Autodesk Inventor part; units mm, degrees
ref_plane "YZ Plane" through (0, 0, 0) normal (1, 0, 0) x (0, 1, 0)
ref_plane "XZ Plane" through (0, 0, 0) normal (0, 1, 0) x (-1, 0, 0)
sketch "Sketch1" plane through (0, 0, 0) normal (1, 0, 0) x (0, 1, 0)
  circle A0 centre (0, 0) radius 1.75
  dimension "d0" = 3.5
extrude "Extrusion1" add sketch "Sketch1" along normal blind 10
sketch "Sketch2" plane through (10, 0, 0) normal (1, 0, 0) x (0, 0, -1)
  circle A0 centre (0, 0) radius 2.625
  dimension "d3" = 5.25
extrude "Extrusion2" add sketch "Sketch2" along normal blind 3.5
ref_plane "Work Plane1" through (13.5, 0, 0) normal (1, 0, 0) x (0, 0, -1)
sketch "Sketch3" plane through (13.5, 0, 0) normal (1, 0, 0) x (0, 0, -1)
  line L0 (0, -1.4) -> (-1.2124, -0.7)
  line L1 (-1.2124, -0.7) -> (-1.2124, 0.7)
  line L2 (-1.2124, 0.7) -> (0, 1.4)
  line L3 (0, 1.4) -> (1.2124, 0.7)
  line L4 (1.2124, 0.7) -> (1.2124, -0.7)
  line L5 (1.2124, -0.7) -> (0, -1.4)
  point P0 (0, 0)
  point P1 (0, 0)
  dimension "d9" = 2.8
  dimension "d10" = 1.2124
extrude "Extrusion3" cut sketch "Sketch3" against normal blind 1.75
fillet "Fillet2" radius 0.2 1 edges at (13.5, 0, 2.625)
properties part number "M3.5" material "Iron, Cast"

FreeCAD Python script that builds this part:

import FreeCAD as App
import Part
import Sketcher
Q = App.Units.Quantity


def edges_at(feature, points):
    """Names of the edges that pass closest to the given points."""
    edges = feature.Shape.Edges
    near = lambda p: min(range(len(edges)), key=lambda i: edges[i].distToShape(Part.Vertex(*p))[0])
    return sorted({f"Edge{near(p) + 1}" for p in points})

doc = App.newDocument("Part")
params = doc.addObject("Spreadsheet::Sheet", "Params")
for row, (alias, value) in enumerate([
    ("sketch1_diameter", "3.5 mm"),
    ("pad1_length", "10 mm"),
    ("sketch2_diameter", "5.25 mm"),
    ("pad2_length", "3.5 mm"),
    ("sketch3_width", "1.4 mm"),
    ("pocket1_length", "1.75 mm"),
    ("fillet_radius", "0.2 mm"),
], start=1):
    params.set(f"A{row}", alias)
    params.set(f"B{row}", "=" + value)
    params.setAlias(f"B{row}", alias)

body = doc.addObject("PartDesign::Body", "Body")

sketch1 = doc.addObject("Sketcher::SketchObject", "Sketch")
body.addObject(sketch1)
sketch1.AttachmentSupport = (doc.YZ_Plane, [""])
sketch1.MapMode = "FlatFace"
sketch1.addGeometry(Part.Circle(App.Vector(0, 0, 0), App.Vector(0, 0, 1), 1.8), False)
sketch1.addConstraint([
    Sketcher.Constraint("Coincident", 0, 3, -1, 1),
    Sketcher.Constraint("Diameter", 0, Q("3.5 mm")),
])
sketch1.setExpression("Constraints[1]", "Params.sketch1_diameter")
pad1 = doc.addObject("PartDesign::Pad", "Pad")
body.addObject(pad1)
pad1.Profile = sketch1
pad1.setExpression("Length", "Params.pad1_length")

sketch2 = doc.addObject("Sketcher::SketchObject", "Sketch001")
body.addObject(sketch2)
sketch2.AttachmentSupport = (doc.YZ_Plane, [""])
sketch2.MapMode = "FlatFace"
sketch2.AttachmentOffset = App.Placement(App.Vector(0, 0, 10), App.Rotation())
sketch2.addGeometry(Part.Circle(App.Vector(0, 0, 0), App.Vector(0, 0, 1), 2.6), False)
sketch2.addConstraint([
    Sketcher.Constraint("Coincident", 0, 3, -1, 1),
    Sketcher.Constraint("Diameter", 0, Q("5.25 mm")),
])
sketch2.setExpression("Constraints[1]", "Params.sketch2_diameter")
pad2 = doc.addObject("PartDesign::Pad", "Pad001")
body.addObject(pad2)
pad2.Profile = sketch2
pad2.setExpression("Length", "Params.pad2_length")

sketch3 = doc.addObject("Sketcher::SketchObject", "Sketch002")
body.addObject(sketch3)
sketch3.AttachmentSupport = (doc.YZ_Plane, [""])
sketch3.MapMode = "FlatFace"
sketch3.AttachmentOffset = App.Placement(App.Vector(0, 0, 13.5), App.Rotation())
sketch3.addGeometry([
    Part.LineSegment(App.Vector(-0.7, 1.2, 0), App.Vector(-1.4, 0, 0)),
    Part.LineSegment(App.Vector(-1.4, 0, 0), App.Vector(-0.7, -1.2, 0)),
    Part.LineSegment(App.Vector(-0.7, -1.2, 0), App.Vector(0.7, -1.2, 0)),
    Part.LineSegment(App.Vector(0.7, -1.2, 0), App.Vector(1.4, 0, 0)),
    Part.LineSegment(App.Vector(1.4, 0, 0), App.Vector(0.7, 1.2, 0)),
    Part.LineSegment(App.Vector(0.7, 1.2, 0), App.Vector(-0.7, 1.2, 0)),
], False)
sketch3.addConstraint([
    Sketcher.Constraint("Coincident", 0, 2, 1, 1),
    Sketcher.Constraint("Coincident", 1, 2, 2, 1),
    Sketcher.Constraint("Coincident", 2, 2, 3, 1),
    Sketcher.Constraint("Coincident", 3, 2, 4, 1),
    Sketcher.Constraint("Coincident", 4, 2, 5, 1),
    Sketcher.Constraint("Coincident", 5, 2, 0, 1),
    Sketcher.Constraint("Horizontal", 2),
    Sketcher.Constraint("Horizontal", 5),
    Sketcher.Constraint("Symmetric", 0, 2, 3, 2, -1, 1),
    Sketcher.Constraint("Symmetric", 1, 2, 4, 2, -1, 1),
    Sketcher.Constraint("PointOnObject", 0, 2, -1),
    Sketcher.Constraint("Parallel", 0, 3),
    Sketcher.Constraint("Vertical", 2, 2, 4, 2),
    Sketcher.Constraint("DistanceX", 0, 2, 3, 2, Q("2.8 mm")),
    Sketcher.Constraint("Angle", 0, Q("-120.0007 deg")),
    Sketcher.Constraint("DistanceX", 2, 1, 2, 2, Q("1.4 mm")),
])
sketch3.setExpression("Constraints[15]", "Params.sketch3_width")
pocket1 = doc.addObject("PartDesign::Pocket", "Pocket")
body.addObject(pocket1)
pocket1.Profile = sketch3
pocket1.setExpression("Length", "Params.pocket1_length")
doc.recompute()

fillet = doc.addObject("PartDesign::Fillet", "Fillet")
body.addObject(fillet)
fillet.Base = (pocket1, edges_at(pocket1, [(13.5, 0, 2.625)]))
fillet.setExpression("Radius", "Params.fillet_radius")

doc.recompute()
